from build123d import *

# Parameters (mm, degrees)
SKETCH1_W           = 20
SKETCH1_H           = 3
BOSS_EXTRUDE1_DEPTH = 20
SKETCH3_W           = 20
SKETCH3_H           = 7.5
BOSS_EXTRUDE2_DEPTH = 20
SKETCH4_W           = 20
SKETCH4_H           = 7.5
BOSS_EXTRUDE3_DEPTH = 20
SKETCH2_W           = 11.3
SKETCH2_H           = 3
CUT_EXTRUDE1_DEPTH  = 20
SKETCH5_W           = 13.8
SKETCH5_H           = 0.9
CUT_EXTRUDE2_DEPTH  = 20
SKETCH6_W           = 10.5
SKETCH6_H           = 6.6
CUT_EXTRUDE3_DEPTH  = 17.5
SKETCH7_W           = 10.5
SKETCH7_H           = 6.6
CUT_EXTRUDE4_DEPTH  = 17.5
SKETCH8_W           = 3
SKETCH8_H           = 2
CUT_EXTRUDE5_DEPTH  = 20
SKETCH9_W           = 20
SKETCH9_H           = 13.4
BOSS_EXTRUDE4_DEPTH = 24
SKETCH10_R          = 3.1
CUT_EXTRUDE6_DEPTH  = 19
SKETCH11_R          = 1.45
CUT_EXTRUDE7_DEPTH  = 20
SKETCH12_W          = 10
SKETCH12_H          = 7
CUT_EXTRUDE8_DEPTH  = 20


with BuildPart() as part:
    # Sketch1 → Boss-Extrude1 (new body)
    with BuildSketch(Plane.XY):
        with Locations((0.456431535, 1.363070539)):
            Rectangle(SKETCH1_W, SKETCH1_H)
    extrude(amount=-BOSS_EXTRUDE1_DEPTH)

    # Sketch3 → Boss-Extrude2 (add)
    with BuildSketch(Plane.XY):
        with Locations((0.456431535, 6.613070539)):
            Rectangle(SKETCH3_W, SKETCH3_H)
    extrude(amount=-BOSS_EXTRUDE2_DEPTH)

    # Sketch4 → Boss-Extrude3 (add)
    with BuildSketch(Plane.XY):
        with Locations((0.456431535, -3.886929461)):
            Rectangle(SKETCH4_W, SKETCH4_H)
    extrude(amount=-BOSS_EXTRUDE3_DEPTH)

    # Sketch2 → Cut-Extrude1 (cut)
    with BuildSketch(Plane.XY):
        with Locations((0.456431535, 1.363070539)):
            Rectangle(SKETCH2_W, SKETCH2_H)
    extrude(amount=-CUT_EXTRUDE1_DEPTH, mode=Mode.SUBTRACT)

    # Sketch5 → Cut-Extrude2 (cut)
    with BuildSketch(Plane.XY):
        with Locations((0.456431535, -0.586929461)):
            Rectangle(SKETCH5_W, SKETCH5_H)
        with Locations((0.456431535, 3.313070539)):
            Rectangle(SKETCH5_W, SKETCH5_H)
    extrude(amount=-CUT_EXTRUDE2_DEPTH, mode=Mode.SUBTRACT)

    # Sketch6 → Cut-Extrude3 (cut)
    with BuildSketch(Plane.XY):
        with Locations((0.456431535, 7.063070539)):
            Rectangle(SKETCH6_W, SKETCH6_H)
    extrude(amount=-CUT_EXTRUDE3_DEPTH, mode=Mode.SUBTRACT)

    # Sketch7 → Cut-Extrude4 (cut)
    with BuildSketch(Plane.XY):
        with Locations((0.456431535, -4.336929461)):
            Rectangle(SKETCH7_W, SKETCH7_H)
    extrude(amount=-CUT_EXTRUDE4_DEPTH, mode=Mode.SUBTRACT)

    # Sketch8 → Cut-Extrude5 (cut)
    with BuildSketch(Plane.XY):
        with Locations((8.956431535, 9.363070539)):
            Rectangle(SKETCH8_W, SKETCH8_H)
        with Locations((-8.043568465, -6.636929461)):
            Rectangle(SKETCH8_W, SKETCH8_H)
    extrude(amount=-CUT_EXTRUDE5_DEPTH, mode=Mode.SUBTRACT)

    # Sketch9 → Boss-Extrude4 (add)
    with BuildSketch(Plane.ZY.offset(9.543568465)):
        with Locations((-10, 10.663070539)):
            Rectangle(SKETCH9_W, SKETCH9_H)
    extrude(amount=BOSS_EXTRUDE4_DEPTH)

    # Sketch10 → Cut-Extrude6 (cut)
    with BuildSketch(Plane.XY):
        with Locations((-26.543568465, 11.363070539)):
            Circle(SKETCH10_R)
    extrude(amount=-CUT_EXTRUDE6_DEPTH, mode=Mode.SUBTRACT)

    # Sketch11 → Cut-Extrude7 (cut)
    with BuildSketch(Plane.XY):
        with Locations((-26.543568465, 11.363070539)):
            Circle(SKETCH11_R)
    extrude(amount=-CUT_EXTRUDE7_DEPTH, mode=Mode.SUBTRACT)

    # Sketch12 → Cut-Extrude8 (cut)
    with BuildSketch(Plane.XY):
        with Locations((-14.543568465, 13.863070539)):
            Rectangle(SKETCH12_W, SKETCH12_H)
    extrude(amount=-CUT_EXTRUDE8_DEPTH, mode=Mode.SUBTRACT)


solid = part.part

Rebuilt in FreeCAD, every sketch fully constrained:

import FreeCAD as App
import Part
import Sketcher
from FreeCAD import Vector
Q = App.Units.Quantity

doc = App.newDocument("Part")
body = doc.addObject("PartDesign::Body", "Body")

# Sketch on XY plane
sketch1 = body.newObject("Sketcher::SketchObject", "Sketch")
sketch1.AttachmentSupport = (doc.getObject("XY_Plane"), [""])
sketch1.MapMode = "FlatFace"
sketch1.addGeometry(Part.LineSegment(Vector(-9.5, 2.9, 0), Vector(-9.5, -0.1, 0)), False)
sketch1.addGeometry(Part.LineSegment(Vector(-9.5, -0.1, 0), Vector(10.5, -0.1, 0)), False)
sketch1.addGeometry(Part.LineSegment(Vector(10.5, -0.1, 0), Vector(10.5, 2.9, 0)), False)
sketch1.addGeometry(Part.LineSegment(Vector(10.5, 2.9, 0), Vector(-9.5, 2.9, 0)), False)
sketch1.addConstraint(Sketcher.Constraint("Coincident", 0, 2, 1, 1))
sketch1.addConstraint(Sketcher.Constraint("Coincident", 1, 2, 2, 1))
sketch1.addConstraint(Sketcher.Constraint("Coincident", 2, 2, 3, 1))
sketch1.addConstraint(Sketcher.Constraint("Coincident", 3, 2, 0, 1))
sketch1.addConstraint(Sketcher.Constraint("Vertical", 0))
sketch1.addConstraint(Sketcher.Constraint("Horizontal", 1))
sketch1.addConstraint(Sketcher.Constraint("Vertical", 2))
sketch1.addConstraint(Sketcher.Constraint("Horizontal", 3))
sketch1.addConstraint(Sketcher.Constraint("DistanceX", 1, 1, 1, 2, Q("20 mm")))
sketch1.addConstraint(Sketcher.Constraint("DistanceY", 0, 2, 0, 1, Q("3 mm")))
sketch1.addConstraint(Sketcher.Constraint("DistanceX", 0, 2, -1, 1, Q("9.543568 mm")))
sketch1.addConstraint(Sketcher.Constraint("DistanceY", 0, 2, -1, 1, Q("0.136929 mm")))
pad1 = body.newObject("PartDesign::Pad", "Pad")
pad1.Profile = sketch1
pad1.Length = 20
pad1.Reversed = True

# Sketch on XY plane
sketch2 = body.newObject("Sketcher::SketchObject", "Sketch001")
sketch2.AttachmentSupport = (doc.getObject("XY_Plane"), [""])
sketch2.MapMode = "FlatFace"
sketch2.addGeometry(Part.LineSegment(Vector(-10, 10, 0), Vector(-10, 3, 0)), False)
sketch2.addGeometry(Part.LineSegment(Vector(-10, 3, 0), Vector(10, 3, 0)), False)
sketch2.addGeometry(Part.LineSegment(Vector(10, 3, 0), Vector(10, 10, 0)), False)
sketch2.addGeometry(Part.LineSegment(Vector(10, 10, 0), Vector(-10, 10, 0)), False)
sketch2.addConstraint(Sketcher.Constraint("Coincident", 0, 2, 1, 1))
sketch2.addConstraint(Sketcher.Constraint("Coincident", 1, 2, 2, 1))
sketch2.addConstraint(Sketcher.Constraint("Coincident", 2, 2, 3, 1))
sketch2.addConstraint(Sketcher.Constraint("Coincident", 3, 2, 0, 1))
sketch2.addConstraint(Sketcher.Constraint("Vertical", 0))
sketch2.addConstraint(Sketcher.Constraint("Horizontal", 1))
sketch2.addConstraint(Sketcher.Constraint("Vertical", 2))
sketch2.addConstraint(Sketcher.Constraint("Horizontal", 3))
sketch2.addConstraint(Sketcher.Constraint("DistanceX", 1, 1, 1, 2, Q("20 mm")))
sketch2.addConstraint(Sketcher.Constraint("DistanceY", 0, 2, 0, 1, Q("7.5 mm")))
sketch2.addConstraint(Sketcher.Constraint("DistanceX", 0, 2, -1, 1, Q("9.543568 mm")))
sketch2.addConstraint(Sketcher.Constraint("DistanceY", -1, 1, 0, 2, Q("2.863071 mm")))
pad2 = body.newObject("PartDesign::Pad", "Pad001")
pad2.Profile = sketch2
pad2.Length = 20
pad2.Reversed = True

# Sketch on XY plane
sketch3 = body.newObject("Sketcher::SketchObject", "Sketch002")
sketch3.AttachmentSupport = (doc.getObject("XY_Plane"), [""])
sketch3.MapMode = "FlatFace"
sketch3.addGeometry(Part.LineSegment(Vector(-10, 0, 0), Vector(-10, -8, 0)), False)
sketch3.addGeometry(Part.LineSegment(Vector(-10, -8, 0), Vector(10, -8, 0)), False)
sketch3.addGeometry(Part.LineSegment(Vector(10, -8, 0), Vector(10, 0, 0)), False)
sketch3.addGeometry(Part.LineSegment(Vector(10, 0, 0), Vector(-10, 0, 0)), False)
sketch3.addConstraint(Sketcher.Constraint("Coincident", 0, 2, 1, 1))
sketch3.addConstraint(Sketcher.Constraint("Coincident", 1, 2, 2, 1))
sketch3.addConstraint(Sketcher.Constraint("Coincident", 2, 2, 3, 1))
sketch3.addConstraint(Sketcher.Constraint("Coincident", 3, 2, 0, 1))
sketch3.addConstraint(Sketcher.Constraint("Vertical", 0))
sketch3.addConstraint(Sketcher.Constraint("Horizontal", 1))
sketch3.addConstraint(Sketcher.Constraint("Vertical", 2))
sketch3.addConstraint(Sketcher.Constraint("Horizontal", 3))
sketch3.addConstraint(Sketcher.Constraint("DistanceX", 1, 1, 1, 2, Q("20 mm")))
sketch3.addConstraint(Sketcher.Constraint("DistanceY", 0, 2, 0, 1, Q("7.5 mm")))
sketch3.addConstraint(Sketcher.Constraint("DistanceX", 0, 2, -1, 1, Q("9.543568 mm")))
sketch3.addConstraint(Sketcher.Constraint("DistanceY", 0, 2, -1, 1, Q("7.636929 mm")))
pad3 = body.newObject("PartDesign::Pad", "Pad002")
pad3.Profile = sketch3
pad3.Length = 20
pad3.Reversed = True

# Sketch on XY plane
sketch4 = body.newObject("Sketcher::SketchObject", "Sketch003")
sketch4.AttachmentSupport = (doc.getObject("XY_Plane"), [""])
sketch4.MapMode = "FlatFace"
sketch4.addGeometry(Part.LineSegment(Vector(-5.2, 2.9, 0), Vector(-5.2, -0.1, 0)), False)
sketch4.addGeometry(Part.LineSegment(Vector(-5.2, -0.1, 0), Vector(6.1, -0.1, 0)), False)
sketch4.addGeometry(Part.LineSegment(Vector(6.1, -0.1, 0), Vector(6.1, 2.9, 0)), False)
sketch4.addGeometry(Part.LineSegment(Vector(6.1, 2.9, 0), Vector(-5.2, 2.9, 0)), False)
sketch4.addConstraint(Sketcher.Constraint("Coincident", 0, 2, 1, 1))
sketch4.addConstraint(Sketcher.Constraint("Coincident", 1, 2, 2, 1))
sketch4.addConstraint(Sketcher.Constraint("Coincident", 2, 2, 3, 1))
sketch4.addConstraint(Sketcher.Constraint("Coincident", 3, 2, 0, 1))
sketch4.addConstraint(Sketcher.Constraint("Vertical", 0))
sketch4.addConstraint(Sketcher.Constraint("Horizontal", 1))
sketch4.addConstraint(Sketcher.Constraint("Vertical", 2))
sketch4.addConstraint(Sketcher.Constraint("Horizontal", 3))
sketch4.addConstraint(Sketcher.Constraint("DistanceY", 0, 2, 0, 1, Q("3 mm")))
sketch4.addConstraint(Sketcher.Constraint("DistanceX", 1, 1, 1, 2, Q("11.3 mm")))
sketch4.addConstraint(Sketcher.Constraint("DistanceX", 0, 2, -1, 1, Q("5.193568 mm")))
sketch4.addConstraint(Sketcher.Constraint("DistanceY", 0, 2, -1, 1, Q("0.136929 mm")))
pocket1 = body.newObject("PartDesign::Pocket", "Pocket")
pocket1.Profile = sketch4
pocket1.Length = 20

# Sketch on XY plane
sketch5 = body.newObject("Sketcher::SketchObject", "Sketch004")
sketch5.AttachmentSupport = (doc.getObject("XY_Plane"), [""])
sketch5.MapMode = "FlatFace"
sketch5.addGeometry(Part.LineSegment(Vector(-6.4, -0.1, 0), Vector(-6.4, -1, 0)), False)
sketch5.addGeometry(Part.LineSegment(Vector(-6.4, -1, 0), Vector(7.4, -1, 0)), False)
sketch5.addGeometry(Part.LineSegment(Vector(7.4, -1, 0), Vector(7.4, -0.1, 0)), False)
sketch5.addGeometry(Part.LineSegment(Vector(7.4, -0.1, 0), Vector(-6.4, -0.1, 0)), False)
sketch5.addGeometry(Part.LineSegment(Vector(-6.4, 3.8, 0), Vector(-6.4, 2.9, 0)), False)
sketch5.addGeometry(Part.LineSegment(Vector(-6.4, 2.9, 0), Vector(7.4, 2.9, 0)), False)
sketch5.addGeometry(Part.LineSegment(Vector(7.4, 2.9, 0), Vector(7.4, 3.8, 0)), False)
sketch5.addGeometry(Part.LineSegment(Vector(7.4, 3.8, 0), Vector(-6.4, 3.8, 0)), False)
sketch5.addConstraint(Sketcher.Constraint("Coincident", 0, 2, 1, 1))
sketch5.addConstraint(Sketcher.Constraint("Coincident", 1, 2, 2, 1))
sketch5.addConstraint(Sketcher.Constraint("Coincident", 2, 2, 3, 1))
sketch5.addConstraint(Sketcher.Constraint("Coincident", 3, 2, 0, 1))
sketch5.addConstraint(Sketcher.Constraint("Coincident", 4, 2, 5, 1))
sketch5.addConstraint(Sketcher.Constraint("Coincident", 5, 2, 6, 1))
sketch5.addConstraint(Sketcher.Constraint("Coincident", 6, 2, 7, 1))
sketch5.addConstraint(Sketcher.Constraint("Coincident", 7, 2, 4, 1))
sketch5.addConstraint(Sketcher.Constraint("Vertical", 0))
sketch5.addConstraint(Sketcher.Constraint("Horizontal", 1))
sketch5.addConstraint(Sketcher.Constraint("Vertical", 2))
sketch5.addConstraint(Sketcher.Constraint("Horizontal", 3))
sketch5.addConstraint(Sketcher.Constraint("Vertical", 4))
sketch5.addConstraint(Sketcher.Constraint("Horizontal", 5))
sketch5.addConstraint(Sketcher.Constraint("Vertical", 6))
sketch5.addConstraint(Sketcher.Constraint("Horizontal", 7))
sketch5.addConstraint(Sketcher.Constraint("Vertical", 3, 2, 4, 2))
sketch5.addConstraint(Sketcher.Constraint("Vertical", 2, 2, 5, 2))
sketch5.addConstraint(Sketcher.Constraint("Equal", 2, 4))
sketch5.addConstraint(Sketcher.Constraint("DistanceX", 1, 1, 1, 2, Q("13.8 mm")))
sketch5.addConstraint(Sketcher.Constraint("DistanceY", 0, 2, 0, 1, Q("0.9 mm")))
sketch5.addConstraint(Sketcher.Constraint("DistanceY", 3, 2, 4, 2, Q("3 mm")))
sketch5.addConstraint(Sketcher.Constraint("DistanceX", 0, 2, -1, 1, Q("6.443568 mm")))
sketch5.addConstraint(Sketcher.Constraint("DistanceY", 0, 2, -1, 1, Q("1.036929 mm")))
pocket2 = body.newObject("PartDesign::Pocket", "Pocket001")
pocket2.Profile = sketch5
pocket2.Length = 20

# Sketch on XY plane
sketch6 = body.newObject("Sketcher::SketchObject", "Sketch005")
sketch6.AttachmentSupport = (doc.getObject("XY_Plane"), [""])
sketch6.MapMode = "FlatFace"
sketch6.addGeometry(Part.LineSegment(Vector(-5, 10, 0), Vector(-5, 4, 0)), False)
sketch6.addGeometry(Part.LineSegment(Vector(-5, 4, 0), Vector(6, 4, 0)), False)
sketch6.addGeometry(Part.LineSegment(Vector(6, 4, 0), Vector(6, 10, 0)), False)
sketch6.addGeometry(Part.LineSegment(Vector(6, 10, 0), Vector(-5, 10, 0)), False)
sketch6.addConstraint(Sketcher.Constraint("Coincident", 0, 2, 1, 1))
sketch6.addConstraint(Sketcher.Constraint("Coincident", 1, 2, 2, 1))
sketch6.addConstraint(Sketcher.Constraint("Coincident", 2, 2, 3, 1))
sketch6.addConstraint(Sketcher.Constraint("Coincident", 3, 2, 0, 1))
sketch6.addConstraint(Sketcher.Constraint("Vertical", 0))
sketch6.addConstraint(Sketcher.Constraint("Horizontal", 1))
sketch6.addConstraint(Sketcher.Constraint("Vertical", 2))
sketch6.addConstraint(Sketcher.Constraint("Horizontal", 3))
sketch6.addConstraint(Sketcher.Constraint("DistanceX", 1, 1, 1, 2, Q("10.5 mm")))
sketch6.addConstraint(Sketcher.Constraint("DistanceY", 0, 2, 0, 1, Q("6.6 mm")))
sketch6.addConstraint(Sketcher.Constraint("DistanceX", 0, 2, -1, 1, Q("4.793568 mm")))
sketch6.addConstraint(Sketcher.Constraint("DistanceY", -1, 1, 0, 2, Q("3.763071 mm")))
pocket3 = body.newObject("PartDesign::Pocket", "Pocket002")
pocket3.Profile = sketch6
pocket3.Length = 17.5

# Sketch on XY plane
sketch7 = body.newObject("Sketcher::SketchObject", "Sketch006")
sketch7.AttachmentSupport = (doc.getObject("XY_Plane"), [""])
sketch7.MapMode = "FlatFace"
sketch7.addGeometry(Part.LineSegment(Vector(-5, -1, 0), Vector(-5, -8, 0)), False)
sketch7.addGeometry(Part.LineSegment(Vector(-5, -8, 0), Vector(6, -8, 0)), False)
sketch7.addGeometry(Part.LineSegment(Vector(6, -8, 0), Vector(6, -1, 0)), False)
sketch7.addGeometry(Part.LineSegment(Vector(6, -1, 0), Vector(-5, -1, 0)), False)
sketch7.addConstraint(Sketcher.Constraint("Coincident", 0, 2, 1, 1))
sketch7.addConstraint(Sketcher.Constraint("Coincident", 1, 2, 2, 1))
sketch7.addConstraint(Sketcher.Constraint("Coincident", 2, 2, 3, 1))
sketch7.addConstraint(Sketcher.Constraint("Coincident", 3, 2, 0, 1))
sketch7.addConstraint(Sketcher.Constraint("Vertical", 0))
sketch7.addConstraint(Sketcher.Constraint("Horizontal", 1))
sketch7.addConstraint(Sketcher.Constraint("Vertical", 2))
sketch7.addConstraint(Sketcher.Constraint("Horizontal", 3))
sketch7.addConstraint(Sketcher.Constraint("DistanceX", 1, 1, 1, 2, Q("10.5 mm")))
sketch7.addConstraint(Sketcher.Constraint("DistanceY", 0, 2, 0, 1, Q("6.6 mm")))
sketch7.addConstraint(Sketcher.Constraint("DistanceX", 0, 2, -1, 1, Q("4.793568 mm")))
sketch7.addConstraint(Sketcher.Constraint("DistanceY", 0, 2, -1, 1, Q("7.636929 mm")))
pocket4 = body.newObject("PartDesign::Pocket", "Pocket003")
pocket4.Profile = sketch7
pocket4.Length = 17.5

# Sketch on XY plane
sketch8 = body.newObject("Sketcher::SketchObject", "Sketch007")
sketch8.AttachmentSupport = (doc.getObject("XY_Plane"), [""])
sketch8.MapMode = "FlatFace"
sketch8.addGeometry(Part.LineSegment(Vector(7.5, 10.4, 0), Vector(7.5, 8.4, 0)), False)
sketch8.addGeometry(Part.LineSegment(Vector(7.5, 8.4, 0), Vector(10.5, 8.4, 0)), False)
sketch8.addGeometry(Part.LineSegment(Vector(10.5, 8.4, 0), Vector(10.5, 10.4, 0)), False)
sketch8.addGeometry(Part.LineSegment(Vector(10.5, 10.4, 0), Vector(7.5, 10.4, 0)), False)
sketch8.addGeometry(Part.LineSegment(Vector(-9.5, -5.6, 0), Vector(-9.5, -7.6, 0)), False)
sketch8.addGeometry(Part.LineSegment(Vector(-9.5, -7.6, 0), Vector(-6.5, -7.6, 0)), False)
sketch8.addGeometry(Part.LineSegment(Vector(-6.5, -7.6, 0), Vector(-6.5, -5.6, 0)), False)
sketch8.addGeometry(Part.LineSegment(Vector(-6.5, -5.6, 0), Vector(-9.5, -5.6, 0)), False)
sketch8.addConstraint(Sketcher.Constraint("Coincident", 0, 2, 1, 1))
sketch8.addConstraint(Sketcher.Constraint("Coincident", 1, 2, 2, 1))
sketch8.addConstraint(Sketcher.Constraint("Coincident", 2, 2, 3, 1))
sketch8.addConstraint(Sketcher.Constraint("Coincident", 3, 2, 0, 1))
sketch8.addConstraint(Sketcher.Constraint("Coincident", 4, 2, 5, 1))
sketch8.addConstraint(Sketcher.Constraint("Coincident", 5, 2, 6, 1))
sketch8.addConstraint(Sketcher.Constraint("Coincident", 6, 2, 7, 1))
sketch8.addConstraint(Sketcher.Constraint("Coincident", 7, 2, 4, 1))
sketch8.addConstraint(Sketcher.Constraint("Vertical", 0))
sketch8.addConstraint(Sketcher.Constraint("Horizontal", 1))
sketch8.addConstraint(Sketcher.Constraint("Vertical", 2))
sketch8.addConstraint(Sketcher.Constraint("Horizontal", 3))
sketch8.addConstraint(Sketcher.Constraint("Vertical", 4))
sketch8.addConstraint(Sketcher.Constraint("Horizontal", 5))
sketch8.addConstraint(Sketcher.Constraint("Vertical", 6))
sketch8.addConstraint(Sketcher.Constraint("Horizontal", 7))
sketch8.addConstraint(Sketcher.Constraint("Equal", 3, 5))
sketch8.addConstraint(Sketcher.Constraint("Equal", 2, 4))
sketch8.addConstraint(Sketcher.Constraint("DistanceX", 1, 1, 1, 2, Q("3 mm")))
sketch8.addConstraint(Sketcher.Constraint("DistanceY", 0, 2, 0, 1, Q("2 mm")))
sketch8.addConstraint(Sketcher.Constraint("DistanceX", 4, 2, 0, 2, Q("17 mm")))
sketch8.addConstraint(Sketcher.Constraint("DistanceY", 4, 2, 0, 2, Q("16 mm")))
sketch8.addConstraint(Sketcher.Constraint("DistanceX", -1, 1, 0, 2, Q("7.456432 mm")))
sketch8.addConstraint(Sketcher.Constraint("DistanceY", -1, 1, 0, 2, Q("8.363071 mm")))
pocket5 = body.newObject("PartDesign::Pocket", "Pocket004")
pocket5.Profile = sketch8
pocket5.Length = 20

# Sketch on YZ plane
sketch9 = body.newObject("Sketcher::SketchObject", "Sketch008")
sketch9.AttachmentSupport = (doc.getObject("YZ_Plane"), [""])
sketch9.MapMode = "FlatFace"
sketch9.AttachmentOffset = App.Placement(Vector(0, 0, -9.543568), App.Rotation())
sketch9.addGeometry(Part.LineSegment(Vector(17, -20, 0), Vector(4, -20, 0)), False)
sketch9.addGeometry(Part.LineSegment(Vector(4, -20, 0), Vector(4, 0, 0)), False)
sketch9.addGeometry(Part.LineSegment(Vector(4, 0, 0), Vector(17, 0, 0)), False)
sketch9.addGeometry(Part.LineSegment(Vector(17, 0, 0), Vector(17, -20, 0)), False)
sketch9.addConstraint(Sketcher.Constraint("Coincident", 0, 2, 1, 1))
sketch9.addConstraint(Sketcher.Constraint("Coincident", 1, 2, 2, 1))
sketch9.addConstraint(Sketcher.Constraint("Coincident", 2, 2, 3, 1))
sketch9.addConstraint(Sketcher.Constraint("Coincident", 3, 2, 0, 1))
sketch9.addConstraint(Sketcher.Constraint("Horizontal", 0))
sketch9.addConstraint(Sketcher.Constraint("Vertical", 1))
sketch9.addConstraint(Sketcher.Constraint("Horizontal", 2))
sketch9.addConstraint(Sketcher.Constraint("Vertical", 3))
sketch9.addConstraint(Sketcher.Constraint("PointOnObject", 1, 2, -1))
sketch9.addConstraint(Sketcher.Constraint("DistanceY", 1, 1, 1, 2, Q("20 mm")))
sketch9.addConstraint(Sketcher.Constraint("DistanceX", 0, 2, 0, 1, Q("13.4 mm")))
sketch9.addConstraint(Sketcher.Constraint("DistanceX", -1, 1, 0, 2, Q("3.963071 mm")))
pad4 = body.newObject("PartDesign::Pad", "Pad003")
pad4.Profile = sketch9
pad4.Length = 24
pad4.Reversed = True

# Sketch on XY plane
sketch10 = body.newObject("Sketcher::SketchObject", "Sketch009")
sketch10.AttachmentSupport = (doc.getObject("XY_Plane"), [""])
sketch10.MapMode = "FlatFace"
sketch10.addGeometry(Part.Circle(Vector(-26.5, 11.4, 0), Vector(0, 0, 1), 3.1), False)
sketch10.addConstraint(Sketcher.Constraint("Diameter", 0, Q("6.2 mm")))
sketch10.addConstraint(Sketcher.Constraint("DistanceX", 0, 3, -1, 1, Q("26.543568 mm")))
sketch10.addConstraint(Sketcher.Constraint("DistanceY", -1, 1, 0, 3, Q("11.363071 mm")))
pocket6 = body.newObject("PartDesign::Pocket", "Pocket005")
pocket6.Profile = sketch10
pocket6.Length = 19

# Sketch on XY plane
sketch11 = body.newObject("Sketcher::SketchObject", "Sketch010")
sketch11.AttachmentSupport = (doc.getObject("XY_Plane"), [""])
sketch11.MapMode = "FlatFace"
sketch11.addGeometry(Part.Circle(Vector(-26.5, 11.4, 0), Vector(0, 0, 1), 1.4), False)
sketch11.addConstraint(Sketcher.Constraint("Diameter", 0, Q("2.9 mm")))
sketch11.addConstraint(Sketcher.Constraint("DistanceX", 0, 3, -1, 1, Q("26.543568 mm")))
sketch11.addConstraint(Sketcher.Constraint("DistanceY", -1, 1, 0, 3, Q("11.363071 mm")))
pocket7 = body.newObject("PartDesign::Pocket", "Pocket006")
pocket7.Profile = sketch11
pocket7.Length = 20

# Sketch on XY plane
sketch12 = body.newObject("Sketcher::SketchObject", "Sketch011")
sketch12.AttachmentSupport = (doc.getObject("XY_Plane"), [""])
sketch12.MapMode = "FlatFace"
sketch12.addGeometry(Part.LineSegment(Vector(-20, 17, 0), Vector(-20, 10, 0)), False)
sketch12.addGeometry(Part.LineSegment(Vector(-20, 10, 0), Vector(-10, 10, 0)), False)
sketch12.addGeometry(Part.LineSegment(Vector(-10, 10, 0), Vector(-10, 17, 0)), False)
sketch12.addGeometry(Part.LineSegment(Vector(-10, 17, 0), Vector(-20, 17, 0)), False)
sketch12.addConstraint(Sketcher.Constraint("Coincident", 0, 2, 1, 1))
sketch12.addConstraint(Sketcher.Constraint("Coincident", 1, 2, 2, 1))
sketch12.addConstraint(Sketcher.Constraint("Coincident", 2, 2, 3, 1))
sketch12.addConstraint(Sketcher.Constraint("Coincident", 3, 2, 0, 1))
sketch12.addConstraint(Sketcher.Constraint("Vertical", 0))
sketch12.addConstraint(Sketcher.Constraint("Horizontal", 1))
sketch12.addConstraint(Sketcher.Constraint("Vertical", 2))
sketch12.addConstraint(Sketcher.Constraint("Horizontal", 3))
sketch12.addConstraint(Sketcher.Constraint("DistanceX", 1, 1, 1, 2, Q("10 mm")))
sketch12.addConstraint(Sketcher.Constraint("DistanceY", 0, 2, 0, 1, Q("7 mm")))
sketch12.addConstraint(Sketcher.Constraint("DistanceX", 0, 2, -1, 1, Q("19.543568 mm")))
sketch12.addConstraint(Sketcher.Constraint("DistanceY", -1, 1, 0, 2, Q("10.363071 mm")))
pocket8 = body.newObject("PartDesign::Pocket", "Pocket007")
pocket8.Profile = sketch12
pocket8.Length = 20

doc.recompute()
